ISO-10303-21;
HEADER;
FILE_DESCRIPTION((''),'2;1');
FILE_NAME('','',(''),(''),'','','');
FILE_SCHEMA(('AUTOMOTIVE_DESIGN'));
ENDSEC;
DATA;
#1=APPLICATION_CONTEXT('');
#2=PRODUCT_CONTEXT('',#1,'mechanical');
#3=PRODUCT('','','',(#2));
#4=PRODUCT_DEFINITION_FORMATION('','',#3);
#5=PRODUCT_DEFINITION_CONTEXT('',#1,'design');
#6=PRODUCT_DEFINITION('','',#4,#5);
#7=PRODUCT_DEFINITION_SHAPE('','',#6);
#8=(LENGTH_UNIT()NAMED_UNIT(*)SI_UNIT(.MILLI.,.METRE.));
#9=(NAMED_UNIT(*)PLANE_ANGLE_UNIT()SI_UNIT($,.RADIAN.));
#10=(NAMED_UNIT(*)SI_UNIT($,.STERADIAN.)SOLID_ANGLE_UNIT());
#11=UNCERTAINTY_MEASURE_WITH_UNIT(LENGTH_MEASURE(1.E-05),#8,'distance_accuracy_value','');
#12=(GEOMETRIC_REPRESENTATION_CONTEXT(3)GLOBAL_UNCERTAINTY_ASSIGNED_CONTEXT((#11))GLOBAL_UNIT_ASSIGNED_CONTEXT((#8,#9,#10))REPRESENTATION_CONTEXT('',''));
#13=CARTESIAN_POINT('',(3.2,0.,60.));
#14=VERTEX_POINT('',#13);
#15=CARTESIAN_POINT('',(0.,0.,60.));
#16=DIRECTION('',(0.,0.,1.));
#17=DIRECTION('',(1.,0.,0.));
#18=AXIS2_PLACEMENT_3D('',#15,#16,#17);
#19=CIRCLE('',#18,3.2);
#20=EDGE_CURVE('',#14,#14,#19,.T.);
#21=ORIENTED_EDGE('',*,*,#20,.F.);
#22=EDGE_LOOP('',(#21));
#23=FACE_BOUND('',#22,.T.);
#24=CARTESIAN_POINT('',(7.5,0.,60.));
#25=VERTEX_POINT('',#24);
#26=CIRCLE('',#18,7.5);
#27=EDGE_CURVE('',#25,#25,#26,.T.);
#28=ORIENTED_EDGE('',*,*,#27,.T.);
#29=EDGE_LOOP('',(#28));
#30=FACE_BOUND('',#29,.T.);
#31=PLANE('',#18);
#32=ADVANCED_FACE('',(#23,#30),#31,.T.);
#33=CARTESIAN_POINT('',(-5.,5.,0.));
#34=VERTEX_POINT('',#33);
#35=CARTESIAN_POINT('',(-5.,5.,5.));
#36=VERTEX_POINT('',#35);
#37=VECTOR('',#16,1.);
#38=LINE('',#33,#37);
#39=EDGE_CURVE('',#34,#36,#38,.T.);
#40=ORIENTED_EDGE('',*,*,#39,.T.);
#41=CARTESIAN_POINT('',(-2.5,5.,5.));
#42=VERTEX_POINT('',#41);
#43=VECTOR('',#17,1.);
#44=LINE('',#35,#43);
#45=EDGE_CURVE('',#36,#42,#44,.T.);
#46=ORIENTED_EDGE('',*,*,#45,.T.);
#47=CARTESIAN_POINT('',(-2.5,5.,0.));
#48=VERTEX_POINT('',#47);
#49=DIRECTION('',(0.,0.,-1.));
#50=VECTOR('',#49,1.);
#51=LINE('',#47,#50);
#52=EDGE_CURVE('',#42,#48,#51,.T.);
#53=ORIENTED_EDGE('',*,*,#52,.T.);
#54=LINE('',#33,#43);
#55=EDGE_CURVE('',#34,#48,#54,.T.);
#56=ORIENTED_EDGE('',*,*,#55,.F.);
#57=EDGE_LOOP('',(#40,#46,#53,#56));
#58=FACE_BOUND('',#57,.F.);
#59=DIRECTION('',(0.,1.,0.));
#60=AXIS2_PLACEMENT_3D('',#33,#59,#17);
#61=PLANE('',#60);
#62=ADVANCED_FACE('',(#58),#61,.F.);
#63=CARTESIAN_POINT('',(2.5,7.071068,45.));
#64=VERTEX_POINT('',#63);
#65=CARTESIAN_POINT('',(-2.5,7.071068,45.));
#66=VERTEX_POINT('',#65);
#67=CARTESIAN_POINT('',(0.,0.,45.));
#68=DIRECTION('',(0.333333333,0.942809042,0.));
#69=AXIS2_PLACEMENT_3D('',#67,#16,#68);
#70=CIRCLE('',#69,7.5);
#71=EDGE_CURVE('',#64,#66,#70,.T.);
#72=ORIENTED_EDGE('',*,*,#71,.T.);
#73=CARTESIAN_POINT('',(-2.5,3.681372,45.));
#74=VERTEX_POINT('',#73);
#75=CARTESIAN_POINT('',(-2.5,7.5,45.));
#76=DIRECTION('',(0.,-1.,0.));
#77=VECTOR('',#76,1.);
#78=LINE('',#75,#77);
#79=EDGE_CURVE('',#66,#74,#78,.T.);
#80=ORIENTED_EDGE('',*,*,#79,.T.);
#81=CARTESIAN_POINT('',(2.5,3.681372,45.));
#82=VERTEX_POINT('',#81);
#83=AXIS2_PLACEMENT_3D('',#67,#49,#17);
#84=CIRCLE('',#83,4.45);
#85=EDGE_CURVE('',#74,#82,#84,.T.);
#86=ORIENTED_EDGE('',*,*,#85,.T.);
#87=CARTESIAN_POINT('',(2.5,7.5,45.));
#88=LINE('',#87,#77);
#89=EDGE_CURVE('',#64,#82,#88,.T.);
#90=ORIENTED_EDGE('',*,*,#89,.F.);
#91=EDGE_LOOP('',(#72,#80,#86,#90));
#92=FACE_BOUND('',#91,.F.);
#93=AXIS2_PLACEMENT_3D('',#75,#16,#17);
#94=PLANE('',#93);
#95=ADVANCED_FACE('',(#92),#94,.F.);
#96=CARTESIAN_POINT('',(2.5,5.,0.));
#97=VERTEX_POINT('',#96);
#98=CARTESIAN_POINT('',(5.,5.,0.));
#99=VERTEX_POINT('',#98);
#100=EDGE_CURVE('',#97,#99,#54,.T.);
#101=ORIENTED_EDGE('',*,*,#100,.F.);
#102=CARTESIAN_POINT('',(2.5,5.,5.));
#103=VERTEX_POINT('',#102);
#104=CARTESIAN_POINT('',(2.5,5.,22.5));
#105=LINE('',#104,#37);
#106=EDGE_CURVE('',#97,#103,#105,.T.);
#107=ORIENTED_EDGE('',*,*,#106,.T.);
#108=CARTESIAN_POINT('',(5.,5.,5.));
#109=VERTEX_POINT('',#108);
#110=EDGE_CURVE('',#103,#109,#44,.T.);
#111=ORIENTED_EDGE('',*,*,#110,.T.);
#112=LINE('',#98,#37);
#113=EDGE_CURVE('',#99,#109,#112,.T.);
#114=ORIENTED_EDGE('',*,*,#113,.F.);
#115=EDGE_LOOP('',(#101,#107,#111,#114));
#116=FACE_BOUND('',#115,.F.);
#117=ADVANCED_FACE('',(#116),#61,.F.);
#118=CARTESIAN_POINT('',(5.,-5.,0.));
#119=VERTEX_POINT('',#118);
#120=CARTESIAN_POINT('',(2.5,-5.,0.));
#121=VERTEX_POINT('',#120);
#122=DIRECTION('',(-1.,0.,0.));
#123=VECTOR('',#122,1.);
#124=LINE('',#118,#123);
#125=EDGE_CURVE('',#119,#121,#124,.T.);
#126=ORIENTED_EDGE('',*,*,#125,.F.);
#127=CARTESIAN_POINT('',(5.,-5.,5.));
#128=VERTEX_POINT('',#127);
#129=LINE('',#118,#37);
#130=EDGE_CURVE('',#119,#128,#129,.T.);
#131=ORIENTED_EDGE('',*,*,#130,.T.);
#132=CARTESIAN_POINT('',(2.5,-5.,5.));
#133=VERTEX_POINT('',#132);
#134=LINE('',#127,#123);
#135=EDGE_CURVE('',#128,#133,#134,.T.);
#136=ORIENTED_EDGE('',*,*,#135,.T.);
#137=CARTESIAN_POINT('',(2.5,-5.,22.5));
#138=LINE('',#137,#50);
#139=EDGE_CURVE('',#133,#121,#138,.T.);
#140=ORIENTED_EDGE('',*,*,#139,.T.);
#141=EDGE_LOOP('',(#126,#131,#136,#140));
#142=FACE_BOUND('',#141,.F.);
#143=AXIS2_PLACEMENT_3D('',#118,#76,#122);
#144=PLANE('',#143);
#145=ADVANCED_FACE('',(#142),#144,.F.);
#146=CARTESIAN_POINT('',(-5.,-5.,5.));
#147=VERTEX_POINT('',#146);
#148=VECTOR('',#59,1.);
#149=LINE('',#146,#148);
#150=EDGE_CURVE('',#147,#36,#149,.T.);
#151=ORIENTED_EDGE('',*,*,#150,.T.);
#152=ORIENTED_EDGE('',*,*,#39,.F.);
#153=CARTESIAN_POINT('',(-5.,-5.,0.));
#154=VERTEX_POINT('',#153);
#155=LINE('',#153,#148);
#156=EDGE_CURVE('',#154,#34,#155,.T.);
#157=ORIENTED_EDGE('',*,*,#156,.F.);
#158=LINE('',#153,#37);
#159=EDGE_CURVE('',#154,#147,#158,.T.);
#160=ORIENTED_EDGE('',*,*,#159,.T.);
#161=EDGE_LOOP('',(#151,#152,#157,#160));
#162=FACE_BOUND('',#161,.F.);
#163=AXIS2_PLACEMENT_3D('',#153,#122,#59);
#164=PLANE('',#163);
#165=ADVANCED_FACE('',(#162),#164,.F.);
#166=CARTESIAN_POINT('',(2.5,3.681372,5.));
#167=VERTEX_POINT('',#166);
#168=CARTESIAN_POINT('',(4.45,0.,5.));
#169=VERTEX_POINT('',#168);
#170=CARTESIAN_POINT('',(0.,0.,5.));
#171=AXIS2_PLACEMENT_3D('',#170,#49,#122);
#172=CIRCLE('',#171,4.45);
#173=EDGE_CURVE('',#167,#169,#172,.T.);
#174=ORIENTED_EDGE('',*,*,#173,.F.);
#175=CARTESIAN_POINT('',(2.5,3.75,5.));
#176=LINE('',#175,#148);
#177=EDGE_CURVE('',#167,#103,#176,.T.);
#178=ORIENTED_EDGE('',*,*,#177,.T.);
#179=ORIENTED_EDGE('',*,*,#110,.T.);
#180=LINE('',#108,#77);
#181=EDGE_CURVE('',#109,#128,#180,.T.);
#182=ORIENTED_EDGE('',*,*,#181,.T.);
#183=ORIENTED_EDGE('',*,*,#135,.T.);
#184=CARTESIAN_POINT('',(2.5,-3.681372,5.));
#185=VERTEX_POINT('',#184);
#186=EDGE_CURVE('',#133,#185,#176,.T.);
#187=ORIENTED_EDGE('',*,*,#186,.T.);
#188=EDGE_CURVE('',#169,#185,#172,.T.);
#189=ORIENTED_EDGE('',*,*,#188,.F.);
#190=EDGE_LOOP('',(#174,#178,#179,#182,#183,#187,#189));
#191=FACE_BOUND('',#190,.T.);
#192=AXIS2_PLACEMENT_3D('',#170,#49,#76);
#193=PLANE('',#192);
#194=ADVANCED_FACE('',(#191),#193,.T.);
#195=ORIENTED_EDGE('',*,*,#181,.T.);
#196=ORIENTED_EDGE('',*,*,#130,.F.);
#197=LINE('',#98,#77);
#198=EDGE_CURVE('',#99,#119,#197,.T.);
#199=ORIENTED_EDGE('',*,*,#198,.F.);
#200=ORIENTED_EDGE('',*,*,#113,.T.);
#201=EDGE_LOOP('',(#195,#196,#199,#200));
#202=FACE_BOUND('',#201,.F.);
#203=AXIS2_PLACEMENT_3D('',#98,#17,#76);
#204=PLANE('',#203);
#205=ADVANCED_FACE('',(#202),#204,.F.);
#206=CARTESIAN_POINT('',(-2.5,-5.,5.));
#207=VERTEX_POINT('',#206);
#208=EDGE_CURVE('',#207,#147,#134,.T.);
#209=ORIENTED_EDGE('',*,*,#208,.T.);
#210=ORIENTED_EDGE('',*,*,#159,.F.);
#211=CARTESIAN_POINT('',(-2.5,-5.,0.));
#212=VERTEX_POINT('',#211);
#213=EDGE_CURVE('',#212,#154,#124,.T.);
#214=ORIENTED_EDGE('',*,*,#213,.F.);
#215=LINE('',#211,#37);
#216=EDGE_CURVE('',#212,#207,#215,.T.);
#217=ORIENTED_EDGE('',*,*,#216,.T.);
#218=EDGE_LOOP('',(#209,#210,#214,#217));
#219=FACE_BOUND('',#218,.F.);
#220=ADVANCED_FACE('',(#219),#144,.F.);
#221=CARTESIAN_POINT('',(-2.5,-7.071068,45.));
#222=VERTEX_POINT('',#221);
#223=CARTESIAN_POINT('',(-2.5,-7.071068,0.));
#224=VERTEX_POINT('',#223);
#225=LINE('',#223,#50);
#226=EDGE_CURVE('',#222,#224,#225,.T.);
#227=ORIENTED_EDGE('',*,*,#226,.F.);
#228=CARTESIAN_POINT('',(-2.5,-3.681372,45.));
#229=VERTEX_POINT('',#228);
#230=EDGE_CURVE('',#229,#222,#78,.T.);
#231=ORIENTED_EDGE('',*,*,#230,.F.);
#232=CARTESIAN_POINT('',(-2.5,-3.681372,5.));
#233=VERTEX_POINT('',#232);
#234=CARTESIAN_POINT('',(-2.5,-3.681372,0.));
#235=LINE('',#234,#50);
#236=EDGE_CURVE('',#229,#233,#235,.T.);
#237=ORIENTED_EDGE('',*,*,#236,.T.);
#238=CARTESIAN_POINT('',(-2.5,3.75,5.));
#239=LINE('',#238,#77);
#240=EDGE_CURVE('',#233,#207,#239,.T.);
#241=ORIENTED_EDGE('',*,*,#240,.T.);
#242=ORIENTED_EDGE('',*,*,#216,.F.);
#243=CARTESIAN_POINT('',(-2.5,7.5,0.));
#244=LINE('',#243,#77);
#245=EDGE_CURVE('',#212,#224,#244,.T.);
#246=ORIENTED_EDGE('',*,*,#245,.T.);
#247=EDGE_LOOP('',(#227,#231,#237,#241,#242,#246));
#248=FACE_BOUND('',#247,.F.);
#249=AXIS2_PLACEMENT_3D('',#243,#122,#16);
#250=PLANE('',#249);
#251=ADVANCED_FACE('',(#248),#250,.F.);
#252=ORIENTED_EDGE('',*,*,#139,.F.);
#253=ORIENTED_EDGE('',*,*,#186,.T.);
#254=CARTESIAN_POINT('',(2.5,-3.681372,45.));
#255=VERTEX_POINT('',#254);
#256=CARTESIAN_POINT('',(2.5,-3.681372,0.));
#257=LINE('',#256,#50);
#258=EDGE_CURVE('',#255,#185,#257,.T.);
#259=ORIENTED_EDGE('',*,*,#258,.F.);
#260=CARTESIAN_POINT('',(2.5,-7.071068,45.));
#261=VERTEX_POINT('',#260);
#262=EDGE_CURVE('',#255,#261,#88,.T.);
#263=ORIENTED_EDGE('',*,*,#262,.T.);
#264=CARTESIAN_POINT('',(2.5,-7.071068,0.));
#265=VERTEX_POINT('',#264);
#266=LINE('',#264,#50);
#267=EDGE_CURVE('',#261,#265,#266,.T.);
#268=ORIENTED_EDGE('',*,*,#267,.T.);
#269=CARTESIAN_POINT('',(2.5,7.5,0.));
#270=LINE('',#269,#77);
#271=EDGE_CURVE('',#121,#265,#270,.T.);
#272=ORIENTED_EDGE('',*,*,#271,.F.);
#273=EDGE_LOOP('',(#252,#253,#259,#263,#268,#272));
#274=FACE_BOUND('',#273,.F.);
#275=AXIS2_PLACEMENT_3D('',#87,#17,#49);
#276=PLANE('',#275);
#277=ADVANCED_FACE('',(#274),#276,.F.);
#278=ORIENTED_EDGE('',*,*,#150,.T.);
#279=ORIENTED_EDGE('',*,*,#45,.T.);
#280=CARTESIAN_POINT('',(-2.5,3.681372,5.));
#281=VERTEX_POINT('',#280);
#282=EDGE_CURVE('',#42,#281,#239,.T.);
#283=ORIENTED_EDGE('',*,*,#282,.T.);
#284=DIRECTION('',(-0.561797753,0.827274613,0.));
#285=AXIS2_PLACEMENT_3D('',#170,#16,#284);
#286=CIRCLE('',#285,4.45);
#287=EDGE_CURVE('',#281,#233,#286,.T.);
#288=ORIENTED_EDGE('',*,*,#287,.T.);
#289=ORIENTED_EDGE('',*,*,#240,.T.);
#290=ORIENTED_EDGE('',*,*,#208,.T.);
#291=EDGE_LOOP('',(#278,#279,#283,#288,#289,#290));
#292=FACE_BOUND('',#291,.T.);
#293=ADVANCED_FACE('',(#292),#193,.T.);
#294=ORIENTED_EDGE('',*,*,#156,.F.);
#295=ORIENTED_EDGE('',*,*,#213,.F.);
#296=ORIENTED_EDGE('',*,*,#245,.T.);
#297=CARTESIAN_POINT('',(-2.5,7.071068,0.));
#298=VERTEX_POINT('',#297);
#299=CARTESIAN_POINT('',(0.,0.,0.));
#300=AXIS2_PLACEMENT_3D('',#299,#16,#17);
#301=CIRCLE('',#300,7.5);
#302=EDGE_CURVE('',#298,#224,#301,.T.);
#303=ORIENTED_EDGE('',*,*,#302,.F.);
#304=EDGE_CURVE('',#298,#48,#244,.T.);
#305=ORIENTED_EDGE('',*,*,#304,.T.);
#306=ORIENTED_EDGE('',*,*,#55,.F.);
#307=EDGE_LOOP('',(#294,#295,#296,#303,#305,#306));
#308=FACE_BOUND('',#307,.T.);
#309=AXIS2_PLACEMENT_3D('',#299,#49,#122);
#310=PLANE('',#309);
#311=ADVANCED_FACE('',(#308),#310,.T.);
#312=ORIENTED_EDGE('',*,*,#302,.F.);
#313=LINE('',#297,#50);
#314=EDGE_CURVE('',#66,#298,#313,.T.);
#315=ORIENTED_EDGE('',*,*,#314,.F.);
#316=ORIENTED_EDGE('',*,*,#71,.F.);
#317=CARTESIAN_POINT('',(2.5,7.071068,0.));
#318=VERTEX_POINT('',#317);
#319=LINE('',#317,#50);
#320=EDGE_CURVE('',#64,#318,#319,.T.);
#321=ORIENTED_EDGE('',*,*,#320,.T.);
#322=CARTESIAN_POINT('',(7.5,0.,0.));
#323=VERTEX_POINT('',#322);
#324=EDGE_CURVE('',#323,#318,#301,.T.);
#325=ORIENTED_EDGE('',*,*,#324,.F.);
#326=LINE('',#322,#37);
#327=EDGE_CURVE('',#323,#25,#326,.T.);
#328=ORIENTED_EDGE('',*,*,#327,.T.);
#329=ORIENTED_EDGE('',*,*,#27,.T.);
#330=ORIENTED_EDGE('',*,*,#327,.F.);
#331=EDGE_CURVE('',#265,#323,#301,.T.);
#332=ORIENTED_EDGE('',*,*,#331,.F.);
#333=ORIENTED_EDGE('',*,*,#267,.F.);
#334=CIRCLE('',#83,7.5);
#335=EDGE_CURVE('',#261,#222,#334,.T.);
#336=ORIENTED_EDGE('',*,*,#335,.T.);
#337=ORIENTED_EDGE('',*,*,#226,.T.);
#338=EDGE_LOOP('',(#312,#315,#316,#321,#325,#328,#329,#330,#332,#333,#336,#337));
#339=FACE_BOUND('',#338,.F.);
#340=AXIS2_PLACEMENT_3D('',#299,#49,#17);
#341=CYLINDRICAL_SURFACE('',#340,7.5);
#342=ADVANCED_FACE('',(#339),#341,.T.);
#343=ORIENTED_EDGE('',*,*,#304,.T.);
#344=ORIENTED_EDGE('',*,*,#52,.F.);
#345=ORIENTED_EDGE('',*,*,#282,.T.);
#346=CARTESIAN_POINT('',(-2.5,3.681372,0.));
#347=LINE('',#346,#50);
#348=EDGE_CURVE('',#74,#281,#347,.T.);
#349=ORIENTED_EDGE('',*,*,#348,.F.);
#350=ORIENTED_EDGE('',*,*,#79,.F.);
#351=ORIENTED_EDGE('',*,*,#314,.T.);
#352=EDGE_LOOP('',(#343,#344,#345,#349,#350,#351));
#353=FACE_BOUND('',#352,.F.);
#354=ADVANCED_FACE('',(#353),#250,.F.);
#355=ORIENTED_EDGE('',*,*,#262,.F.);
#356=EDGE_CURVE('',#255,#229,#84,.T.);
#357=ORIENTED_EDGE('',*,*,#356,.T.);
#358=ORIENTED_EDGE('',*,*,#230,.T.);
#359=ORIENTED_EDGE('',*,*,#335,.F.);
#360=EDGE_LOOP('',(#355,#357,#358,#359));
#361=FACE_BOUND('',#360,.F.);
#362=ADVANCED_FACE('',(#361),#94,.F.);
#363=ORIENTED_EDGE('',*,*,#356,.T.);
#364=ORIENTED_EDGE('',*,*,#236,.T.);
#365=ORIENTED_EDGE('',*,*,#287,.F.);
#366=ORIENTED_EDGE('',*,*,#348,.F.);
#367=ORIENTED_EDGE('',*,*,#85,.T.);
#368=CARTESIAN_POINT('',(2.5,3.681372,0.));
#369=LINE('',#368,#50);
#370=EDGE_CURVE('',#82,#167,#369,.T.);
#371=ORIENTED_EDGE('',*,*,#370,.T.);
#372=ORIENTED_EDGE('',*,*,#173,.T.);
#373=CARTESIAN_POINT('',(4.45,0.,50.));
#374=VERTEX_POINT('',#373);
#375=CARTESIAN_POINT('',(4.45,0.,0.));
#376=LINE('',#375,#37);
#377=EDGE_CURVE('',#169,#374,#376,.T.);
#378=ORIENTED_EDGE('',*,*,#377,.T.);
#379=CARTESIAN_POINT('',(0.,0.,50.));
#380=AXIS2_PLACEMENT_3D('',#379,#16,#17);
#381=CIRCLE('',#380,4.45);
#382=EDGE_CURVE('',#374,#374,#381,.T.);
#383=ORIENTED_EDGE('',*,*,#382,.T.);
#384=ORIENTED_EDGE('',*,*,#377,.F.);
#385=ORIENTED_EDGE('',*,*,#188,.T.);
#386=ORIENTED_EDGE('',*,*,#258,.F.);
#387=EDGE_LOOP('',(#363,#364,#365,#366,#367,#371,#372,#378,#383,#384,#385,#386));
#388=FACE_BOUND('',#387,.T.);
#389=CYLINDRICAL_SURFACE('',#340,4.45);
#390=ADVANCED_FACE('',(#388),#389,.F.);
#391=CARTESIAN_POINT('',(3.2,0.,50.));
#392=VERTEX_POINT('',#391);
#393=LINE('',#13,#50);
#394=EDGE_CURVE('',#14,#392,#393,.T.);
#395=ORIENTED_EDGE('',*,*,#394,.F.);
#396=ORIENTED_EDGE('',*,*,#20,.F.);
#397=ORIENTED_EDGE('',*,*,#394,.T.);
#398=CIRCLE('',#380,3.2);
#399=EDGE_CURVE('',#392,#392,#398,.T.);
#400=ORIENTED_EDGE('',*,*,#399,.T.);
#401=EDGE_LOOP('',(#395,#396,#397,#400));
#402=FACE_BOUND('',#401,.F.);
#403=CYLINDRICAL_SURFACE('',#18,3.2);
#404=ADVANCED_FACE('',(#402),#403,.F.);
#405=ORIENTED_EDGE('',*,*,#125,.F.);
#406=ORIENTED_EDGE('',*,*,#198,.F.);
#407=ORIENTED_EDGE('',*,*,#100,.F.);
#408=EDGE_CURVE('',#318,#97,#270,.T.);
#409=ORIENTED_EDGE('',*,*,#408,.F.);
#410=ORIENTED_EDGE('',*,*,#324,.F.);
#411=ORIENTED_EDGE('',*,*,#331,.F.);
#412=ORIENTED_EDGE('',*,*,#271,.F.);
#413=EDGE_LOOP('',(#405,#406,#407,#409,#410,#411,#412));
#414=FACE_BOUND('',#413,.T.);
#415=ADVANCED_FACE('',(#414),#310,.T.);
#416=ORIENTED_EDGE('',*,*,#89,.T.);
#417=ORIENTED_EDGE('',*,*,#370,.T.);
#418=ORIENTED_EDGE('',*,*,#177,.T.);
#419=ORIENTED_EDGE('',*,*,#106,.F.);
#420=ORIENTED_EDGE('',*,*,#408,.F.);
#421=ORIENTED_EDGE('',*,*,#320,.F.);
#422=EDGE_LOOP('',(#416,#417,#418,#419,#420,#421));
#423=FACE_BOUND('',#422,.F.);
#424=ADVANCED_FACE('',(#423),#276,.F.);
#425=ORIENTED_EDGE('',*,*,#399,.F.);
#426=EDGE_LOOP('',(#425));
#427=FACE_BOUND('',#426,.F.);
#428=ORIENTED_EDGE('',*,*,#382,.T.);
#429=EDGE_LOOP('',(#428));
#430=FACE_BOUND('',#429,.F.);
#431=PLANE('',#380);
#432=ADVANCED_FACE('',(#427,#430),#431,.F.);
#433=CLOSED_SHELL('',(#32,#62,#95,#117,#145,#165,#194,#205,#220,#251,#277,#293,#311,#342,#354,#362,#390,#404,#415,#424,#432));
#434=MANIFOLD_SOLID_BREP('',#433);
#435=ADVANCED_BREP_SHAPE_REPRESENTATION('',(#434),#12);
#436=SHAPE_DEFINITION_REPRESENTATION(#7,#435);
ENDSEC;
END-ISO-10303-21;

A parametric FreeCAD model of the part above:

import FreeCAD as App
import Part
import Sketcher
Q = App.Units.Quantity

doc = App.newDocument("Part")
body = doc.addObject("PartDesign::Body", "Body")

sketch1 = body.newObject("Sketcher::SketchObject", "Sketch")
sketch1.AttachmentSupport = (doc.getObject("XY_Plane"), [""])
sketch1.MapMode = "FlatFace"
sketch1.addGeometry([
    Part.Circle(App.Vector(0, 0, 0), App.Vector(0, 0, 1), 7.5),
    Part.Circle(App.Vector(0, 0, 0), App.Vector(0, 0, 1), 4.5),
], False)
sketch1.addConstraint([
    Sketcher.Constraint("Coincident", 0, 3, -1, 1),
    Sketcher.Constraint("Coincident", 1, 3, -1, 1),
    Sketcher.Constraint("Diameter", 0, Q("15 mm")),
    Sketcher.Constraint("Diameter", 1, Q("8.9 mm")),
])
pad1 = body.newObject("PartDesign::Pad", "Pad")
pad1.Profile = sketch1
pad1.Length = 60

sketch2 = body.newObject("Sketcher::SketchObject", "Sketch001")
sketch2.AttachmentSupport = (doc.getObject("XZ_Plane"), [""])
sketch2.MapMode = "FlatFace"
sketch2.AttachmentOffset = App.Placement(App.Vector(0, 0, -7.5), App.Rotation())
sketch2.addGeometry([
    Part.LineSegment(App.Vector(-2, 0, 0), App.Vector(-2, 45, 0)),
    Part.LineSegment(App.Vector(-2, 45, 0), App.Vector(2, 45, 0)),
    Part.LineSegment(App.Vector(2, 45, 0), App.Vector(2, 0, 0)),
    Part.LineSegment(App.Vector(2, 0, 0), App.Vector(-2, 0, 0)),
], False)
sketch2.addConstraint([
    Sketcher.Constraint("Coincident", 0, 2, 1, 1),
    Sketcher.Constraint("Coincident", 1, 2, 2, 1),
    Sketcher.Constraint("Coincident", 2, 2, 3, 1),
    Sketcher.Constraint("Coincident", 3, 2, 0, 1),
    Sketcher.Constraint("Vertical", 0),
    Sketcher.Constraint("Horizontal", 1),
    Sketcher.Constraint("Vertical", 2),
    Sketcher.Constraint("Horizontal", 3),
    Sketcher.Constraint("Symmetric", 2, 2, 3, 2, -1, 1),
    Sketcher.Constraint("DistanceX", 1, 1, 1, 2, Q("5 mm")),
    Sketcher.Constraint("DistanceY", 0, 1, 0, 2, Q("45 mm")),
])
pocket1 = body.newObject("PartDesign::Pocket", "Pocket")
pocket1.Profile = sketch2
pocket1.Type = "ThroughAll"
pocket1.Reversed = True

sketch3 = body.newObject("Sketcher::SketchObject", "Sketch002")
sketch3.AttachmentSupport = (doc.getObject("XY_Plane"), [""])
sketch3.MapMode = "FlatFace"
sketch3.AttachmentOffset = App.Placement(App.Vector(0, 0, 60), App.Rotation())
sketch3.addGeometry([
    Part.Circle(App.Vector(0, 0, 0), App.Vector(0, 0, 1), 4.5),
    Part.Circle(App.Vector(0, 0, 0), App.Vector(0, 0, 1), 3.2),
], False)
sketch3.addConstraint([
    Sketcher.Constraint("Coincident", 0, 3, -1, 1),
    Sketcher.Constraint("Coincident", 1, 3, -1, 1),
    Sketcher.Constraint("Diameter", 1, Q("6.4 mm")),
    Sketcher.Constraint("Diameter", 0, Q("8.9 mm")),
])
pad2 = body.newObject("PartDesign::Pad", "Pad001")
pad2.Profile = sketch3
pad2.Length = 10
pad2.Reversed = True

sketch4 = body.newObject("Sketcher::SketchObject", "Sketch003")
sketch4.AttachmentSupport = (doc.getObject("XY_Plane"), [""])
sketch4.MapMode = "FlatFace"
sketch4.addGeometry(Part.Circle(App.Vector(0, 0, 0), App.Vector(0, 0, 1), 4.5), False)
sketch4.addConstraint([
    Sketcher.Constraint("Coincident", 0, 3, -1, 1),
    Sketcher.Constraint("Diameter", 0, Q("8.9 mm")),
])
pad3 = body.newObject("PartDesign::Pad", "Pad002")
pad3.Profile = sketch4
pad3.Length = 5

sketch5 = body.newObject("Sketcher::SketchObject", "Sketch004")
sketch5.AttachmentSupport = (doc.getObject("XY_Plane"), [""])
sketch5.MapMode = "FlatFace"
sketch5.addGeometry([
    Part.LineSegment(App.Vector(-5, 5, 0), App.Vector(5, 5, 0)),
    Part.LineSegment(App.Vector(5, 5, 0), App.Vector(5, -5, 0)),
    Part.LineSegment(App.Vector(5, -5, 0), App.Vector(-5, -5, 0)),
    Part.LineSegment(App.Vector(-5, -5, 0), App.Vector(-5, 5, 0)),
], False)
sketch5.addConstraint([
    Sketcher.Constraint("Coincident", 0, 2, 1, 1),
    Sketcher.Constraint("Coincident", 1, 2, 2, 1),
    Sketcher.Constraint("Coincident", 2, 2, 3, 1),
    Sketcher.Constraint("Coincident", 3, 2, 0, 1),
    Sketcher.Constraint("Horizontal", 0),
    Sketcher.Constraint("Vertical", 1),
    Sketcher.Constraint("Horizontal", 2),
    Sketcher.Constraint("Vertical", 3),
    Sketcher.Constraint("Symmetric", 0, 2, 2, 2, -1, 1),
    Sketcher.Constraint("Equal", 2, 1),
    Sketcher.Constraint("DistanceX", 0, 1, 0, 2, Q("10 mm")),
])
pocket2 = body.newObject("PartDesign::Pocket", "Pocket001")
pocket2.Profile = sketch5
pocket2.Length = 5
pocket2.Reversed = True

doc.recompute()
